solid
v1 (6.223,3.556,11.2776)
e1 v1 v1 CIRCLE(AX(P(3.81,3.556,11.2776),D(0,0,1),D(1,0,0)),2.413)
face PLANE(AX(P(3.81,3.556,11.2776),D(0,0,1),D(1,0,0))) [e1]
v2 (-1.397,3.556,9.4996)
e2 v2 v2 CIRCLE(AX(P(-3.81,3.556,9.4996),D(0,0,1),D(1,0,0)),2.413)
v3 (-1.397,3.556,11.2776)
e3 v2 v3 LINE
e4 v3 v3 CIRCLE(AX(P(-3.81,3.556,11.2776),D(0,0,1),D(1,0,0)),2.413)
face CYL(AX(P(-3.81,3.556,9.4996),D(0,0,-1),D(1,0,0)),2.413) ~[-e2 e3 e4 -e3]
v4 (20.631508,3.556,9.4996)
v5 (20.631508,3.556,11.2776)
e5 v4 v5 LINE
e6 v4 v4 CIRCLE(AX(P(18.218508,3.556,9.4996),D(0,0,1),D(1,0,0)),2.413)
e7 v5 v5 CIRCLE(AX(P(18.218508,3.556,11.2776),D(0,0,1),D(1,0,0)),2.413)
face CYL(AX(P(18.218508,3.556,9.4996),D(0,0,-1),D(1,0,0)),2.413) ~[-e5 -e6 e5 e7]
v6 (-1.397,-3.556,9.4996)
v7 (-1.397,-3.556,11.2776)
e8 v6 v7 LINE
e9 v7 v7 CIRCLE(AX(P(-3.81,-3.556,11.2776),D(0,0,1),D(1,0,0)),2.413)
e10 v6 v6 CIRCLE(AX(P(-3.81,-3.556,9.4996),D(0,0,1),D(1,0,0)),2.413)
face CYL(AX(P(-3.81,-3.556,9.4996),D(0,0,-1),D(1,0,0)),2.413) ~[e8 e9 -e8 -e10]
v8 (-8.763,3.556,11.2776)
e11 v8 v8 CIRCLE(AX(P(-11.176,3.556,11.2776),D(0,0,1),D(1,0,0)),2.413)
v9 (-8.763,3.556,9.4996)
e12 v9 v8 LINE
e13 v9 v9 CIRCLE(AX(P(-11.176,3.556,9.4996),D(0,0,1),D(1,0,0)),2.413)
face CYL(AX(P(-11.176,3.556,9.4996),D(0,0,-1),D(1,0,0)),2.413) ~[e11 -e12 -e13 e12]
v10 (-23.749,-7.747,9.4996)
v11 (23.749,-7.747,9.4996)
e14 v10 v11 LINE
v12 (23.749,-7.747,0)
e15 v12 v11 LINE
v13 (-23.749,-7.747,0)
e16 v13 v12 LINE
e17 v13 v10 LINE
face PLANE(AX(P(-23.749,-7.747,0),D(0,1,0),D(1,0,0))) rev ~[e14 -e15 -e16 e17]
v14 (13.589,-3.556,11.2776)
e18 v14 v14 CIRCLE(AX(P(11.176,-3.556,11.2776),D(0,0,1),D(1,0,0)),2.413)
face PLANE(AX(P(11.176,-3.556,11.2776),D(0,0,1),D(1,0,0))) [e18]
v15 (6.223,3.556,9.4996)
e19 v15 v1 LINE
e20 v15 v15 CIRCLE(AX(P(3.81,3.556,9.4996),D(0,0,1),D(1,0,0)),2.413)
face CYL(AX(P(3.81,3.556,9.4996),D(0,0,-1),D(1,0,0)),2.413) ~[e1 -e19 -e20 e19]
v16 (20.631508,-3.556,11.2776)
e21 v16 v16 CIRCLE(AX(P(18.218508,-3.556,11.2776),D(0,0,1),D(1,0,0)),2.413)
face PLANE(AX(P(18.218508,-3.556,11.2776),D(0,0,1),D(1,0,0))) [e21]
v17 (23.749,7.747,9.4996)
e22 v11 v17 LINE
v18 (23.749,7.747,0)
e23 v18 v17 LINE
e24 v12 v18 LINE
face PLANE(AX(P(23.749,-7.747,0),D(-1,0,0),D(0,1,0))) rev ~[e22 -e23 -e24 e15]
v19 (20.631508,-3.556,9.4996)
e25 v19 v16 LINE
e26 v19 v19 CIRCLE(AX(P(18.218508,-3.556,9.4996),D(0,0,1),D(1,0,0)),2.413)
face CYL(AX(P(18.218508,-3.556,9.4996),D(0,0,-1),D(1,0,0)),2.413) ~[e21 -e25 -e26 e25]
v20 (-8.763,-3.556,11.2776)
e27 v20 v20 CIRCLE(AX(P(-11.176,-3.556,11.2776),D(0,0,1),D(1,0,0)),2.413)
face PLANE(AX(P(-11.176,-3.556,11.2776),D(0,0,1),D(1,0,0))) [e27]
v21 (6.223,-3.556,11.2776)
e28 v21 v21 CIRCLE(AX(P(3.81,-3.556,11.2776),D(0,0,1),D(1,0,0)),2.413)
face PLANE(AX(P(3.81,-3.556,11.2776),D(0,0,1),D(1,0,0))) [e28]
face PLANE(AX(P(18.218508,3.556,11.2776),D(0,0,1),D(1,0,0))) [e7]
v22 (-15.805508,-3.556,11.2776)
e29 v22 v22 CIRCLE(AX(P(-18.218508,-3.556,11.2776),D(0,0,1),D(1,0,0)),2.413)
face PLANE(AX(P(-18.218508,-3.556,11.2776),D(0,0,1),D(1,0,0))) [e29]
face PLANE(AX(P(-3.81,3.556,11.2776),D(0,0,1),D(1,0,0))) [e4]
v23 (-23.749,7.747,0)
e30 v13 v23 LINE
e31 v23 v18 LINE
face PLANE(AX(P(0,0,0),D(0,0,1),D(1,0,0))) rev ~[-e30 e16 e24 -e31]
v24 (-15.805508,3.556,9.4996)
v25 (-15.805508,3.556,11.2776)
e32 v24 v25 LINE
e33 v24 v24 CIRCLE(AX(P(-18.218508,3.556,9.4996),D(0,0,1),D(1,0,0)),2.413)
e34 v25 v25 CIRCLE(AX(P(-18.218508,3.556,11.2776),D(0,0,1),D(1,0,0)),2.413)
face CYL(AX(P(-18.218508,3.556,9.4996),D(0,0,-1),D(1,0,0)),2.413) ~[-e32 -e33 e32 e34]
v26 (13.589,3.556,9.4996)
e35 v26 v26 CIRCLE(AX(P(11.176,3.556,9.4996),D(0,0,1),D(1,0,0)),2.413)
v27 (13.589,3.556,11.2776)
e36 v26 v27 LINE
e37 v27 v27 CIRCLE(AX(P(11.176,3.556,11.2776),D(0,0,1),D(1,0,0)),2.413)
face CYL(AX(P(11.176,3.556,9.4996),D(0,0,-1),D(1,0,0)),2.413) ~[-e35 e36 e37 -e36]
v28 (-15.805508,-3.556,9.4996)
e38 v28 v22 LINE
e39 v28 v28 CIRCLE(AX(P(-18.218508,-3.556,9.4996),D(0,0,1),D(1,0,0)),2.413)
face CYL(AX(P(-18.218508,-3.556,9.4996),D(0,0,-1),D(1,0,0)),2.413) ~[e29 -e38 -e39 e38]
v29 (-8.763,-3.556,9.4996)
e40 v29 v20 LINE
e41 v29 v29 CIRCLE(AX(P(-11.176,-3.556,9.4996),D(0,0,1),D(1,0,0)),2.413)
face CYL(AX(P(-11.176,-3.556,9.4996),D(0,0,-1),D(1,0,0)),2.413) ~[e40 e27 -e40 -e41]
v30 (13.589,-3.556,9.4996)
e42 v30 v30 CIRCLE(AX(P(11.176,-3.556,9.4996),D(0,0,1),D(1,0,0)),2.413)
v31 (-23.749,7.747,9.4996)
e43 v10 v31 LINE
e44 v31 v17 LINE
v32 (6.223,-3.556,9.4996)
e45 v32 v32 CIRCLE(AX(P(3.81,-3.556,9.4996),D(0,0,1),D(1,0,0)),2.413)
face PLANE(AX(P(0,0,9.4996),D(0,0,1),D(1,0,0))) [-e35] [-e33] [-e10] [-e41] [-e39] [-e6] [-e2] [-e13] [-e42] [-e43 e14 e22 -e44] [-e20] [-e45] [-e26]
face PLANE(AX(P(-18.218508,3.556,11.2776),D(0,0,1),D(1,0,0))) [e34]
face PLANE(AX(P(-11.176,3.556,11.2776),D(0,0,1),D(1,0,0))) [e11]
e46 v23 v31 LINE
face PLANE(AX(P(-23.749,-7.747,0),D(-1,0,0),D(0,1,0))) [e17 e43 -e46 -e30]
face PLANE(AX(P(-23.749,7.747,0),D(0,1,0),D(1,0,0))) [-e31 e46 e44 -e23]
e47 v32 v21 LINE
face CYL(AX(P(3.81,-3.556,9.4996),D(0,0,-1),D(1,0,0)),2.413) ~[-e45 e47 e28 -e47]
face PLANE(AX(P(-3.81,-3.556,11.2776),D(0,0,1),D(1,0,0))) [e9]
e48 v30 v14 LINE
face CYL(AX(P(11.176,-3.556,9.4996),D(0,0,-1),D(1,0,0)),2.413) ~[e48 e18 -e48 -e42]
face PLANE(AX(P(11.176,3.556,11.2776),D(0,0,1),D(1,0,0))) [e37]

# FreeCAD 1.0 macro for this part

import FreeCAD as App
import Part
import Sketcher

V = App.Vector
Q = App.Units.Quantity

doc = App.newDocument("Part")
body = doc.addObject("PartDesign::Body", "Body")

# Sketch on XY plane
sketch1 = body.newObject("Sketcher::SketchObject", "Sketch")
sketch1.AttachmentSupport = (doc.getObject("XY_Plane"), [""])
sketch1.MapMode = "FlatFace"
sketch1.addGeometry([
    Part.LineSegment(V(-24, 8, 0), V(-24, -8, 0)),
    Part.LineSegment(V(-24, -8, 0), V(24, -8, 0)),
    Part.LineSegment(V(24, -8, 0), V(24, 8, 0)),
    Part.LineSegment(V(24, 8, 0), V(-24, 8, 0)),
], False)
sketch1.addConstraint([
    Sketcher.Constraint("Coincident", 0, 2, 1, 1),
    Sketcher.Constraint("Coincident", 1, 2, 2, 1),
    Sketcher.Constraint("Coincident", 2, 2, 3, 1),
    Sketcher.Constraint("Coincident", 3, 2, 0, 1),
    Sketcher.Constraint("Vertical", 0),
    Sketcher.Constraint("Horizontal", 1),
    Sketcher.Constraint("Vertical", 2),
    Sketcher.Constraint("Horizontal", 3),
    Sketcher.Constraint("Symmetric", 0, 2, 2, 2, -1, 1),
    Sketcher.Constraint("DistanceX", 1, 1, 1, 2, Q("1.87 in")),
    Sketcher.Constraint("DistanceY", 0, 2, 0, 1, Q("0.61 in")),
])
pad1 = body.newObject("PartDesign::Pad", "Pad")
pad1.Profile = sketch1
pad1.Length = Q("0.374 in")

# Sketch on XY plane
sketch2 = body.newObject("Sketcher::SketchObject", "Sketch001")
sketch2.AttachmentSupport = (doc.getObject("XY_Plane"), [""])
sketch2.MapMode = "FlatFace"
sketch2.AttachmentOffset = App.Placement(V(0, 0, 0.374 * 25.4), App.Rotation())
sketch2.addGeometry([
    Part.Circle(V(-18.2, 3.6, 0), V(0, 0, 1), 2.4),  # 0
    Part.Circle(V(-11.2, 3.6, 0), V(0, 0, 1), 2.4),  # 1
    Part.Circle(V(-3.8, 3.6, 0), V(0, 0, 1), 2.4),  # 2
    Part.Circle(V(3.8, 3.6, 0), V(0, 0, 1), 2.4),  # 3
    Part.Circle(V(11.2, 3.6, 0), V(0, 0, 1), 2.4),  # 4
    Part.Circle(V(18.2, 3.6, 0), V(0, 0, 1), 2.4),  # 5
    Part.Circle(V(18.2, -3.6, 0), V(0, 0, 1), 2.4),  # 6
    Part.Circle(V(11.2, -3.6, 0), V(0, 0, 1), 2.4),  # 7
    Part.Circle(V(-11.2, -3.6, 0), V(0, 0, 1), 2.4),  # 8
    Part.Circle(V(-3.8, -3.6, 0), V(0, 0, 1), 2.4),  # 9
    Part.Circle(V(3.8, -3.6, 0), V(0, 0, 1), 2.4),  # 10
    Part.Circle(V(-18.2, -3.6, 0), V(0, 0, 1), 2.4),  # 11
], False)
sketch2.addConstraint([
    Sketcher.Constraint("Equal", 0, 1),
    Sketcher.Constraint("Equal", 1, 2),
    Sketcher.Constraint("Equal", 2, 3),
    Sketcher.Constraint("Equal", 3, 4),
    Sketcher.Constraint("Equal", 4, 5),
    Sketcher.Constraint("Equal", 5, 6),
    Sketcher.Constraint("Equal", 6, 7),
    Sketcher.Constraint("Equal", 7, 8),
    Sketcher.Constraint("Equal", 8, 9),
    Sketcher.Constraint("Equal", 9, 10),
    Sketcher.Constraint("Equal", 10, 11),
    Sketcher.Constraint("Symmetric", 0, 3, 6, 3, -1, 1),
    Sketcher.Constraint("Symmetric", 1, 3, 7, 3, -1, 1),
    Sketcher.Constraint("Symmetric", 4, 3, 8, 3, -1, 1),
    Sketcher.Constraint("Symmetric", 3, 3, 9, 3, -1, 1),
    Sketcher.Constraint("Symmetric", 2, 3, 10, 3, -1, 1),
    Sketcher.Constraint("Symmetric", 5, 3, 11, 3, -1, 1),
    Sketcher.Constraint("Symmetric", 2, 3, 3, 3, -2),
    Sketcher.Constraint("Symmetric", 1, 3, 4, 3, -2),
    Sketcher.Constraint("Symmetric", 0, 3, 5, 3, -2),
    Sketcher.Constraint("Horizontal", 0, 3, 1, 3),
    Sketcher.Constraint("Horizontal", 1, 3, 2, 3),
    Sketcher.Constraint("Diameter", 0, Q("0.19 in")),
    Sketcher.Constraint("DistanceX", 2, 3, 3, 3, Q("0.3 in")),
    Sketcher.Constraint("DistanceY", -1, 1, 0, 3, Q("0.14 in")),
    Sketcher.Constraint("DistanceX", 1, 3, -1, 1, Q("0.44 in")),
    Sketcher.Constraint("DistanceX", 0, 3, -1, 1, 18.218508),
])
pad2 = body.newObject("PartDesign::Pad", "Pad001")
pad2.Profile = sketch2
pad2.Length = Q("0.07 in")

doc.recompute()
